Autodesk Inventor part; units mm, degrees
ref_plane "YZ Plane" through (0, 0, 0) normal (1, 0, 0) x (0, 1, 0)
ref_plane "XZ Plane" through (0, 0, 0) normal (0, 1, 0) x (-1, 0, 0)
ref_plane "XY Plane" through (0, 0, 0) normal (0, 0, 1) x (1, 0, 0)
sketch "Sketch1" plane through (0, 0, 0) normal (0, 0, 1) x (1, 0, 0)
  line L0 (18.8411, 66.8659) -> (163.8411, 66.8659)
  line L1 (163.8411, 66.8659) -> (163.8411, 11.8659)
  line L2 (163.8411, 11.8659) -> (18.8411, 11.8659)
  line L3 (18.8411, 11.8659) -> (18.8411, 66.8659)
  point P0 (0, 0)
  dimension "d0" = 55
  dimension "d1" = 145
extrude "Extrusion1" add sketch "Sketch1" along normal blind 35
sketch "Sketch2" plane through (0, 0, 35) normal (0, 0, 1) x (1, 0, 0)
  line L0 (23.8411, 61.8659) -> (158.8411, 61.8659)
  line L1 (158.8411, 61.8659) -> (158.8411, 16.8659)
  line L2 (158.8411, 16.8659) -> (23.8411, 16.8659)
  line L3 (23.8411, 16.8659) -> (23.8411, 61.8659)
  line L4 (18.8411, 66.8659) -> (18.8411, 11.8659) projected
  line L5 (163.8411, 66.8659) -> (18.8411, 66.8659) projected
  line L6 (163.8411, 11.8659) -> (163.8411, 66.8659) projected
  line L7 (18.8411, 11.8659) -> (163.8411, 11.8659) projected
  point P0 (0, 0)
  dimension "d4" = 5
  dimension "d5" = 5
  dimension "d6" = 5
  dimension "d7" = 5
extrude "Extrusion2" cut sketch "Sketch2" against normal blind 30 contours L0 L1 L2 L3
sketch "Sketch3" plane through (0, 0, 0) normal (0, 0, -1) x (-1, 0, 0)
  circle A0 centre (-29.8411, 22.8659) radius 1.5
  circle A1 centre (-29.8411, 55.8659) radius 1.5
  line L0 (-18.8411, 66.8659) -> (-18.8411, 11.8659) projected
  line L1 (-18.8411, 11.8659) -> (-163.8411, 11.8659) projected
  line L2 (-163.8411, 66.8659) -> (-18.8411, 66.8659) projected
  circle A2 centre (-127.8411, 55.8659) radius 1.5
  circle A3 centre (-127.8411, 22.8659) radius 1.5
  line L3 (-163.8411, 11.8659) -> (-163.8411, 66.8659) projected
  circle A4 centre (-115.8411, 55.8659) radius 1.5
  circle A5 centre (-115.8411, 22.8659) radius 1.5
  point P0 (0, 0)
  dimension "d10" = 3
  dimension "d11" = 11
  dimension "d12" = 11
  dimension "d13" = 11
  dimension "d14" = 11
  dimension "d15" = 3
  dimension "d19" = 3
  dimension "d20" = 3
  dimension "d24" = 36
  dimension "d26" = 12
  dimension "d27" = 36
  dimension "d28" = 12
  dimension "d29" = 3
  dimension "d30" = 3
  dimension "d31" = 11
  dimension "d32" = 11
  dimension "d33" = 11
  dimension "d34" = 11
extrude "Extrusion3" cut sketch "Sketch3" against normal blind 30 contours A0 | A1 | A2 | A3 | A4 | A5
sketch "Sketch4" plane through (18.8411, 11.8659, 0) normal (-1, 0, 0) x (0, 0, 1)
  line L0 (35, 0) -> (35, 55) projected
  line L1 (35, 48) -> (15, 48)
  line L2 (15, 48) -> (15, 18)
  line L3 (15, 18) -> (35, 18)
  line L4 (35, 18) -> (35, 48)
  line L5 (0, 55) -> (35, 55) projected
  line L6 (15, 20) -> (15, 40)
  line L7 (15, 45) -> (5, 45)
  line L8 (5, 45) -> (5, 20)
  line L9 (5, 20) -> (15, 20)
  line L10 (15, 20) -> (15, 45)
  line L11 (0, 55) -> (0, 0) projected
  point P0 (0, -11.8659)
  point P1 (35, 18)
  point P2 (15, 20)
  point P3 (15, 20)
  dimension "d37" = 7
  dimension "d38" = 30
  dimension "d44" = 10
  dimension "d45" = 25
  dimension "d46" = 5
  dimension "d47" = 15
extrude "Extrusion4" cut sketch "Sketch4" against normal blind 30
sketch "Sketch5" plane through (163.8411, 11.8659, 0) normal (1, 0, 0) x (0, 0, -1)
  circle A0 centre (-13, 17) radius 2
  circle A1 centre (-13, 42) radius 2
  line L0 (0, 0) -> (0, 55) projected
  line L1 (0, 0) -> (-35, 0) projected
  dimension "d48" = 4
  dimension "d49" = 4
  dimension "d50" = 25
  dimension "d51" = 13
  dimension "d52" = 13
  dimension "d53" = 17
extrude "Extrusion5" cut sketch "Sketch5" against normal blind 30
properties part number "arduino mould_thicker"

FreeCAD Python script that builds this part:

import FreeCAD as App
import Part
import Sketcher

V = App.Vector

doc = App.newDocument("Part")
body = doc.addObject("PartDesign::Body", "Body")

sketch1 = body.newObject("Sketcher::SketchObject", "Sketch")
sketch1.AttachmentSupport = (doc.getObject("XY_Plane"), [""])
sketch1.MapMode = "FlatFace"
sketch1.addGeometry([
    Part.LineSegment(V(164, 67, 0), V(19, 67, 0)),
    Part.LineSegment(V(19, 67, 0), V(19, 12, 0)),
    Part.LineSegment(V(19, 12, 0), V(164, 12, 0)),
    Part.LineSegment(V(164, 12, 0), V(164, 67, 0)),
], False)
sketch1.addConstraint([
    Sketcher.Constraint("Coincident", 0, 2, 1, 1),
    Sketcher.Constraint("Coincident", 1, 2, 2, 1),
    Sketcher.Constraint("Coincident", 2, 2, 3, 1),
    Sketcher.Constraint("Coincident", 3, 2, 0, 1),
    Sketcher.Constraint("Horizontal", 0),
    Sketcher.Constraint("Vertical", 1),
    Sketcher.Constraint("Horizontal", 2),
    Sketcher.Constraint("Vertical", 3),
    Sketcher.Constraint("DistanceX", 0, 2, 0, 1, 145.0),
    Sketcher.Constraint("DistanceY", 1, 2, 1, 1, 55.0),
    Sketcher.Constraint("DistanceX", -1, 1, 0, 2, 18.841),
    Sketcher.Constraint("DistanceY", -1, 1, 0, 2, 66.866),
])
pad1 = body.newObject("PartDesign::Pad", "Pad")
pad1.Profile = sketch1
pad1.Length = 35

sketch2 = body.newObject("Sketcher::SketchObject", "Sketch001")
sketch2.AttachmentSupport = (doc.getObject("XY_Plane"), [""])
sketch2.MapMode = "FlatFace"
sketch2.AttachmentOffset = App.Placement(V(0, 0, 35), App.Rotation())
sketch2.addGeometry([
    Part.LineSegment(V(159, 62, 0), V(24, 62, 0)),
    Part.LineSegment(V(24, 62, 0), V(24, 17, 0)),
    Part.LineSegment(V(24, 17, 0), V(159, 17, 0)),
    Part.LineSegment(V(159, 17, 0), V(159, 62, 0)),
], False)
sketch2.addConstraint([
    Sketcher.Constraint("Coincident", 0, 2, 1, 1),
    Sketcher.Constraint("Coincident", 1, 2, 2, 1),
    Sketcher.Constraint("Coincident", 2, 2, 3, 1),
    Sketcher.Constraint("Coincident", 3, 2, 0, 1),
    Sketcher.Constraint("Horizontal", 0),
    Sketcher.Constraint("Vertical", 1),
    Sketcher.Constraint("Horizontal", 2),
    Sketcher.Constraint("Vertical", 3),
    Sketcher.Constraint("DistanceX", 0, 2, 0, 1, 135.0),
    Sketcher.Constraint("DistanceY", 1, 2, 1, 1, 45.0),
    Sketcher.Constraint("DistanceX", -1, 1, 0, 2, 23.841),
    Sketcher.Constraint("DistanceY", -1, 1, 0, 2, 61.866),
])
pocket1 = body.newObject("PartDesign::Pocket", "Pocket")
pocket1.Profile = sketch2
pocket1.Length = 30

sketch3 = body.newObject("Sketcher::SketchObject", "Sketch002")
sketch3.AttachmentSupport = (doc.getObject("XY_Plane"), [""])
sketch3.MapMode = "FlatFace"
sketch3.addGeometry([
    Part.Circle(V(29.8, 22.9, 0), V(0, 0, 1), 1.5),
    Part.Circle(V(29.8, 55.9, 0), V(0, 0, 1), 1.5),
    Part.Circle(V(127.8, 55.9, 0), V(0, 0, 1), 1.5),
    Part.Circle(V(127.8, 22.9, 0), V(0, 0, 1), 1.5),
    Part.Circle(V(115.8, 55.9, 0), V(0, 0, 1), 1.5),
    Part.Circle(V(115.8, 22.9, 0), V(0, 0, 1), 1.5),
], False)
sketch3.addConstraint([
    Sketcher.Constraint("Equal", 0, 1),
    Sketcher.Constraint("Equal", 1, 2),
    Sketcher.Constraint("Equal", 2, 3),
    Sketcher.Constraint("Equal", 3, 4),
    Sketcher.Constraint("Equal", 4, 5),
    Sketcher.Constraint("Horizontal", 1, 3, 2, 3),
    Sketcher.Constraint("Horizontal", 0, 3, 3, 3),
    Sketcher.Constraint("Horizontal", 2, 3, 4, 3),
    Sketcher.Constraint("Horizontal", 3, 3, 5, 3),
    Sketcher.Constraint("Vertical", 0, 3, 1, 3),
    Sketcher.Constraint("Vertical", 2, 3, 3, 3),
    Sketcher.Constraint("Vertical", 4, 3, 5, 3),
    Sketcher.Constraint("Diameter", 0, 3.0),
    Sketcher.Constraint("DistanceX", 4, 3, 2, 3, 12.0),
    Sketcher.Constraint("DistanceY", 0, 3, 1, 3, 33.0),
    Sketcher.Constraint("DistanceX", 1, 3, 2, 3, 98.0),
    Sketcher.Constraint("DistanceX", -1, 1, 0, 3, 29.841),
    Sketcher.Constraint("DistanceY", -1, 1, 0, 3, 22.866),
])
pocket2 = body.newObject("PartDesign::Pocket", "Pocket001")
pocket2.Profile = sketch3
pocket2.Length = 30
pocket2.Reversed = True

sketch4 = body.newObject("Sketcher::SketchObject", "Sketch003")
sketch4.AttachmentSupport = (doc.getObject("YZ_Plane"), [""])
sketch4.MapMode = "FlatFace"
sketch4.AttachmentOffset = App.Placement(V(0, 0, 18.8411), App.Rotation())
sketch4.addGeometry([
    Part.LineSegment(V(29.9, 15, 0), V(29.9, 35, 0)),
    Part.LineSegment(V(29.9, 35, 0), V(59.9, 35, 0)),
    Part.LineSegment(V(59.9, 35, 0), V(59.9, 15, 0)),
    Part.LineSegment(V(59.9, 15, 0), V(56.9, 15, 0)),
    Part.LineSegment(V(56.9, 15, 0), V(56.9, 5, 0)),
    Part.LineSegment(V(56.9, 5, 0), V(31.9, 5, 0)),
    Part.LineSegment(V(31.9, 5, 0), V(31.9, 15, 0)),
    Part.LineSegment(V(31.9, 15, 0), V(29.9, 15, 0)),
], False)
sketch4.addConstraint([
    Sketcher.Constraint("Coincident", 0, 2, 1, 1),
    Sketcher.Constraint("Coincident", 1, 2, 2, 1),
    Sketcher.Constraint("Coincident", 2, 2, 3, 1),
    Sketcher.Constraint("Coincident", 3, 2, 4, 1),
    Sketcher.Constraint("Coincident", 4, 2, 5, 1),
    Sketcher.Constraint("Coincident", 5, 2, 6, 1),
    Sketcher.Constraint("Coincident", 6, 2, 7, 1),
    Sketcher.Constraint("Coincident", 7, 2, 0, 1),
    Sketcher.Constraint("Vertical", 0),
    Sketcher.Constraint("Horizontal", 1),
    Sketcher.Constraint("Vertical", 2),
    Sketcher.Constraint("Horizontal", 3),
    Sketcher.Constraint("Vertical", 4),
    Sketcher.Constraint("Horizontal", 5),
    Sketcher.Constraint("Vertical", 6),
    Sketcher.Constraint("Horizontal", 7),
    Sketcher.Constraint("Horizontal", 3, 2, 6, 2),
    Sketcher.Constraint("DistanceX", 1, 1, 1, 2, 30.0),
    Sketcher.Constraint("DistanceX", 5, 2, 5, 1, 25.0),
    Sketcher.Constraint("DistanceY", 4, 2, 4, 1, 10.0),
    Sketcher.Constraint("DistanceY", -1, 1, 2, 2, 15.0),
    Sketcher.Constraint("DistanceY", 4, 2, 1, 2, 30.0),
    Sketcher.Constraint("DistanceX", 3, 2, 3, 1, 3.0),
    Sketcher.Constraint("DistanceX", -1, 1, 0, 2, 29.866),
])
pocket3 = body.newObject("PartDesign::Pocket", "Pocket002")
pocket3.Profile = sketch4
pocket3.Length = 30
pocket3.Reversed = True

sketch5 = body.newObject("Sketcher::SketchObject", "Sketch004")
sketch5.AttachmentSupport = (doc.getObject("YZ_Plane"), [""])
sketch5.MapMode = "FlatFace"
sketch5.AttachmentOffset = App.Placement(V(0, 0, 163.8411), App.Rotation())
sketch5.addGeometry([
    Part.Circle(V(28.9, 13, 0), V(0, 0, 1), 2),
    Part.Circle(V(53.9, 13, 0), V(0, 0, 1), 2),
], False)
sketch5.addConstraint([
    Sketcher.Constraint("Equal", 0, 1),
    Sketcher.Constraint("Horizontal", 0, 3, 1, 3),
    Sketcher.Constraint("Diameter", 0, 4.0),
    Sketcher.Constraint("DistanceY", -1, 1, 0, 3, 13.0),
    Sketcher.Constraint("DistanceX", 0, 3, 1, 3, 25.0),
    Sketcher.Constraint("DistanceX", -1, 1, 0, 3, 28.866),
])
pocket4 = body.newObject("PartDesign::Pocket", "Pocket003")
pocket4.Profile = sketch5
pocket4.Length = 30

doc.recompute()
